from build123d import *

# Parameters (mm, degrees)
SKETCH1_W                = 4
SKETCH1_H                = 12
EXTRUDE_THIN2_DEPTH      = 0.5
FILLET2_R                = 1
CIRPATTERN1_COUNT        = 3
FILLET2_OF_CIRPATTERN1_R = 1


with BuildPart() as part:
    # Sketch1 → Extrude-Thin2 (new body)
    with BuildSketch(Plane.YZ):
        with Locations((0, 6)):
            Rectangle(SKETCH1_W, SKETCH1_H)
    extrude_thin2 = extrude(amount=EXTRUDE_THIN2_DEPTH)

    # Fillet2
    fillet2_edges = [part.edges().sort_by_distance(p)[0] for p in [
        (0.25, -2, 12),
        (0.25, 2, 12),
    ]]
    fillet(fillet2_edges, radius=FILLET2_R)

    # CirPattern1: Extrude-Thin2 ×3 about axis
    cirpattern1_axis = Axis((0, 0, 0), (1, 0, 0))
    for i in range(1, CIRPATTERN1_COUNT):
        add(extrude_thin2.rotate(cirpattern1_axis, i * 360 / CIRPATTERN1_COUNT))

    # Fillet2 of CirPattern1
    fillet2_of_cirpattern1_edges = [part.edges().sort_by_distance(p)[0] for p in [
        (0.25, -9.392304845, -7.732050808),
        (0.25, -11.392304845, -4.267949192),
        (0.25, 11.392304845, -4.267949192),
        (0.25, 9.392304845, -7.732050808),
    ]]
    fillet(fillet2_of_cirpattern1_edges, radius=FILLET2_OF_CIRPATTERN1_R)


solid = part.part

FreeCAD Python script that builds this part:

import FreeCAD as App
import Part
import Sketcher

V = App.Vector
Q = App.Units.Quantity


def edges_at(feature, points):
    """Names of the edges that pass closest to the given points."""
    edges = feature.Shape.Edges
    near = lambda p: min(range(len(edges)), key=lambda i: edges[i].distToShape(Part.Vertex(*p))[0])
    return sorted({f"Edge{near(p) + 1}" for p in points})

doc = App.newDocument("Part")
body = doc.addObject("PartDesign::Body", "Body")

sketch1 = body.newObject("Sketcher::SketchObject", "Sketch")
sketch1.AttachmentSupport = (doc.getObject("YZ_Plane"), [""])
sketch1.MapMode = "FlatFace"
sketch1.addGeometry(Part.LineSegment(V(-2, 12, 0), V(-2, 0, 0)), False)
sketch1.addGeometry(Part.LineSegment(V(-2, 0, 0), V(2, 0, 0)), False)
sketch1.addGeometry(Part.LineSegment(V(2, 0, 0), V(2, 12, 0)), False)
sketch1.addGeometry(Part.LineSegment(V(2, 12, 0), V(-2, 12, 0)), False)
sketch1.addConstraint(Sketcher.Constraint("Coincident", 0, 2, 1, 1))
sketch1.addConstraint(Sketcher.Constraint("Coincident", 1, 2, 2, 1))
sketch1.addConstraint(Sketcher.Constraint("Coincident", 2, 2, 3, 1))
sketch1.addConstraint(Sketcher.Constraint("Coincident", 3, 2, 0, 1))
sketch1.addConstraint(Sketcher.Constraint("Vertical", 0))
sketch1.addConstraint(Sketcher.Constraint("Horizontal", 1))
sketch1.addConstraint(Sketcher.Constraint("Vertical", 2))
sketch1.addConstraint(Sketcher.Constraint("Horizontal", 3))
sketch1.addConstraint(Sketcher.Constraint("Symmetric", 0, 2, 1, 2, -1, 1))
sketch1.addConstraint(Sketcher.Constraint("DistanceX", 1, 1, 1, 2, Q("4 mm")))
sketch1.addConstraint(Sketcher.Constraint("DistanceY", 0, 2, 0, 1, Q("12 mm")))
pad1 = body.newObject("PartDesign::Pad", "Pad")
pad1.Profile = sketch1
pad1.Length = 0.5
doc.recompute()

fillet = body.newObject("PartDesign::Fillet", "Fillet")
fillet.Base = (pad1, edges_at(pad1, [(0.25, -2, 12), (0.25, 2, 12)]))
fillet.Radius = 1
doc.recompute()

polarpattern = body.newObject("PartDesign::PolarPattern", "PolarPattern")
polarpattern.Originals = [pad1]
polarpattern.Axis = (doc.getObject("X_Axis"), [""])
polarpattern.Angle = 360
polarpattern.Occurrences = 3
body.Tip = polarpattern
doc.recompute()

fillet2 = body.newObject("PartDesign::Fillet", "Fillet001")
fillet2.Base = (polarpattern, edges_at(polarpattern, [
    (0.25, -9.392, -7.732),
    (0.25, -11.392, -4.268),
    (0.25, 11.392, -4.268),
    (0.25, 9.392, -7.732),
]))
fillet2.Radius = 1

doc.recompute()
